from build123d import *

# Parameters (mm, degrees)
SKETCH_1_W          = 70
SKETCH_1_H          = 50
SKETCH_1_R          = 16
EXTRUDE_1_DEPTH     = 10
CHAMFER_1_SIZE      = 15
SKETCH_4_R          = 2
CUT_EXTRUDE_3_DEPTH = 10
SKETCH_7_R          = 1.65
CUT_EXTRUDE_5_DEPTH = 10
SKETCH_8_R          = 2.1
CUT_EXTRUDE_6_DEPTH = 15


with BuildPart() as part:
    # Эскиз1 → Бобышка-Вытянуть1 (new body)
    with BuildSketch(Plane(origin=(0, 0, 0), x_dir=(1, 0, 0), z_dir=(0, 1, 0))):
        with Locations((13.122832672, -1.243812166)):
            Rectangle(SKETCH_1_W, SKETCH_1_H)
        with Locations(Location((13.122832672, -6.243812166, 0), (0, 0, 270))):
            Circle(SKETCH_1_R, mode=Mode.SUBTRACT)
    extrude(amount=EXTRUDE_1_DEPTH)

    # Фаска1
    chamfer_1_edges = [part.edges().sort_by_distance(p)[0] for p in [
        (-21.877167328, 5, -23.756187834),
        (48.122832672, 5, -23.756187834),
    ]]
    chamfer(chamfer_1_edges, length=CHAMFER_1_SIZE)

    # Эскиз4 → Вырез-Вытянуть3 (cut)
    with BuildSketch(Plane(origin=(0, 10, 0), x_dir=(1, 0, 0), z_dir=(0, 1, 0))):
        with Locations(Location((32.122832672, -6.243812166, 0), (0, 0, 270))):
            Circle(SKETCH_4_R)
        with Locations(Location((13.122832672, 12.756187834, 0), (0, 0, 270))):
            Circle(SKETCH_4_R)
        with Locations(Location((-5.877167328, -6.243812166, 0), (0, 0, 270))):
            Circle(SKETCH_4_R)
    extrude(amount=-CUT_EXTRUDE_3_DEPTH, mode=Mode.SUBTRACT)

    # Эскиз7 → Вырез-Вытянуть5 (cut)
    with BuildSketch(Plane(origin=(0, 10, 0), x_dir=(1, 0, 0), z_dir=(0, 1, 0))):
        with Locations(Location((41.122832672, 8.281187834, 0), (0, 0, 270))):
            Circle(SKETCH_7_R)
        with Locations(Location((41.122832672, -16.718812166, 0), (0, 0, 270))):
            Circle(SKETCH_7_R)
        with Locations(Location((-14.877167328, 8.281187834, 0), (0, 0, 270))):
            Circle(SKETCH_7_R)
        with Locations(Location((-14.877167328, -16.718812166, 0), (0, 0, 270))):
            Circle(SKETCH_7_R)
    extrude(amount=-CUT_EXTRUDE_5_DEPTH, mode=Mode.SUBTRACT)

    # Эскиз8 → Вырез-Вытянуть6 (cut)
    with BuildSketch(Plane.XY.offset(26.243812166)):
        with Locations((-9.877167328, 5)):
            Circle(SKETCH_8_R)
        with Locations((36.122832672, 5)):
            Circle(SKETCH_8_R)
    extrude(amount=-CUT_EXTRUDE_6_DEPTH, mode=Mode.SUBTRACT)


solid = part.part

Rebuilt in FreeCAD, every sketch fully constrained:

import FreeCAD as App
import Part
import Sketcher
Q = App.Units.Quantity


def edges_at(feature, points):
    """Names of the edges that pass closest to the given points."""
    edges = feature.Shape.Edges
    near = lambda p: min(range(len(edges)), key=lambda i: edges[i].distToShape(Part.Vertex(*p))[0])
    return sorted({f"Edge{near(p) + 1}" for p in points})


def add_polygon(sketch, points):
    """Adds a closed chain of lines whose ends are joined by coincident constraints."""
    first, n = sketch.GeometryCount, len(points)
    for a, b in zip(points, points[1:] + points[:1]):
        sketch.addGeometry(Part.LineSegment(App.Vector(*a, 0), App.Vector(*b, 0)), False)
    for i in range(n):
        sketch.addConstraint(Sketcher.Constraint("Coincident", first + i, 2, first + (i + 1) % n, 1))

doc = App.newDocument("Part")
body = doc.addObject("PartDesign::Body", "Body")

# Sketch on XZ plane
sketch1 = body.newObject("Sketcher::SketchObject", "Sketch")
sketch1.AttachmentSupport = (doc.getObject("XZ_Plane"), [""])
sketch1.MapMode = "FlatFace"
add_polygon(sketch1, [(-21.877167, -23.756188), (-21.877167, 26.243812), (48.122833, 26.243812), (48.122833, -23.756188)])  # lines 0-3
sketch1.addGeometry(Part.Circle(App.Vector(13.122833, 6.243812, 0), App.Vector(0, 0, 1), 16), False)  # 4
sketch1.addConstraint(Sketcher.Constraint("Vertical", 0))
sketch1.addConstraint(Sketcher.Constraint("Horizontal", 1))
sketch1.addConstraint(Sketcher.Constraint("Vertical", 2))
sketch1.addConstraint(Sketcher.Constraint("Horizontal", 3))
sketch1.addConstraint(Sketcher.Constraint("Diameter", 4, Q("32 mm")))
sketch1.addConstraint(Sketcher.Constraint("DistanceX", 1, 1, 1, 2, Q("70 mm")))
sketch1.addConstraint(Sketcher.Constraint("DistanceY", 0, 1, 0, 2, Q("50 mm")))
sketch1.addConstraint(Sketcher.Constraint("DistanceX", 0, 2, 4, 3, Q("35 mm")))
sketch1.addConstraint(Sketcher.Constraint("DistanceY", 4, 3, 0, 2, Q("20 mm")))
sketch1.addConstraint(Sketcher.Constraint("DistanceX", -1, 1, 4, 3, Q("13.122833 mm")))
sketch1.addConstraint(Sketcher.Constraint("DistanceY", -1, 1, 4, 3, Q("6.243812 mm")))
pad1 = body.newObject("PartDesign::Pad", "Pad")
pad1.Profile = sketch1
pad1.Length = 10
pad1.Reversed = True
doc.recompute()

chamfer = body.newObject("PartDesign::Chamfer", "Chamfer")
chamfer.Base = (pad1, edges_at(pad1, [(-21.877, 5, -23.756), (48.123, 5, -23.756)]))
chamfer.Size = 15

# Sketch on XZ plane
sketch2 = body.newObject("Sketcher::SketchObject", "Sketch001")
sketch2.AttachmentSupport = (doc.getObject("XZ_Plane"), [""])
sketch2.MapMode = "FlatFace"
sketch2.AttachmentOffset = App.Placement(App.Vector(0, 0, -10), App.Rotation())
sketch2.addGeometry(Part.Circle(App.Vector(32.122833, 6.243812, 0), App.Vector(0, 0, 1), 2), False)
sketch2.addGeometry(Part.Circle(App.Vector(13.122833, -12.756188, 0), App.Vector(0, 0, 1), 2), False)
sketch2.addGeometry(Part.Circle(App.Vector(-5.877167, 6.243812, 0), App.Vector(0, 0, 1), 2), False)
sketch2.addConstraint(Sketcher.Constraint("Equal", 0, 1))
sketch2.addConstraint(Sketcher.Constraint("Equal", 1, 2))
sketch2.addConstraint(Sketcher.Constraint("Horizontal", 0, 3, 2, 3))
sketch2.addConstraint(Sketcher.Constraint("Diameter", 0, Q("4 mm")))
sketch2.addConstraint(Sketcher.Constraint("DistanceX", 1, 3, 0, 3, Q("19 mm")))
sketch2.addConstraint(Sketcher.Constraint("DistanceY", 1, 3, 0, 3, Q("19 mm")))
sketch2.addConstraint(Sketcher.Constraint("DistanceX", 2, 3, 1, 3, Q("19 mm")))
sketch2.addConstraint(Sketcher.Constraint("DistanceX", -1, 1, 0, 3, Q("32.122833 mm")))
sketch2.addConstraint(Sketcher.Constraint("DistanceY", -1, 1, 0, 3, Q("6.243812 mm")))
pocket1 = body.newObject("PartDesign::Pocket", "Pocket")
pocket1.Profile = sketch2
pocket1.Length = 10
pocket1.Reversed = True

# Sketch on XZ plane
sketch3 = body.newObject("Sketcher::SketchObject", "Sketch002")
sketch3.AttachmentSupport = (doc.getObject("XZ_Plane"), [""])
sketch3.MapMode = "FlatFace"
sketch3.AttachmentOffset = App.Placement(App.Vector(0, 0, -10), App.Rotation())
sketch3.addGeometry(Part.Circle(App.Vector(41.122833, -8.281188, 0), App.Vector(0, 0, 1), 1.65), False)
sketch3.addGeometry(Part.Circle(App.Vector(41.122833, 16.718812, 0), App.Vector(0, 0, 1), 1.65), False)
sketch3.addGeometry(Part.Circle(App.Vector(-14.877167, -8.281188, 0), App.Vector(0, 0, 1), 1.65), False)
sketch3.addGeometry(Part.Circle(App.Vector(-14.877167, 16.718812, 0), App.Vector(0, 0, 1), 1.65), False)
sketch3.addConstraint(Sketcher.Constraint("Equal", 0, 1))
sketch3.addConstraint(Sketcher.Constraint("Equal", 1, 2))
sketch3.addConstraint(Sketcher.Constraint("Equal", 2, 3))
sketch3.addConstraint(Sketcher.Constraint("Horizontal", 0, 3, 2, 3))
sketch3.addConstraint(Sketcher.Constraint("Horizontal", 1, 3, 3, 3))
sketch3.addConstraint(Sketcher.Constraint("Vertical", 0, 3, 1, 3))
sketch3.addConstraint(Sketcher.Constraint("Vertical", 2, 3, 3, 3))
sketch3.addConstraint(Sketcher.Constraint("Diameter", 0, Q("3.3 mm")))
sketch3.addConstraint(Sketcher.Constraint("DistanceY", 0, 3, 1, 3, Q("25 mm")))
sketch3.addConstraint(Sketcher.Constraint("DistanceX", 2, 3, 0, 3, Q("56 mm")))
sketch3.addConstraint(Sketcher.Constraint("DistanceX", -1, 1, 0, 3, Q("41.122833 mm")))
sketch3.addConstraint(Sketcher.Constraint("DistanceY", 0, 3, -1, 1, Q("8.281188 mm")))
pocket2 = body.newObject("PartDesign::Pocket", "Pocket001")
pocket2.Profile = sketch3
pocket2.Length = 10
pocket2.Reversed = True

# Sketch on XY plane
sketch4 = body.newObject("Sketcher::SketchObject", "Sketch003")
sketch4.AttachmentSupport = (doc.getObject("XY_Plane"), [""])
sketch4.MapMode = "FlatFace"
sketch4.AttachmentOffset = App.Placement(App.Vector(0, 0, 26.243812), App.Rotation())
sketch4.addGeometry(Part.Circle(App.Vector(-9.877167, 5, 0), App.Vector(0, 0, 1), 2.1), False)
sketch4.addGeometry(Part.Circle(App.Vector(36.122833, 5, 0), App.Vector(0, 0, 1), 2.1), False)
sketch4.addConstraint(Sketcher.Constraint("Equal", 0, 1))
sketch4.addConstraint(Sketcher.Constraint("Horizontal", 0, 3, 1, 3))
sketch4.addConstraint(Sketcher.Constraint("Diameter", 0, Q("4.2 mm")))
sketch4.addConstraint(Sketcher.Constraint("DistanceY", -1, 1, 0, 3, Q("5 mm")))
sketch4.addConstraint(Sketcher.Constraint("DistanceX", 0, 3, 1, 3, Q("46 mm")))
sketch4.addConstraint(Sketcher.Constraint("DistanceX", 0, 3, -1, 1, Q("9.877167 mm")))
pocket3 = body.newObject("PartDesign::Pocket", "Pocket002")
pocket3.Profile = sketch4
pocket3.Length = 15

doc.recompute()
